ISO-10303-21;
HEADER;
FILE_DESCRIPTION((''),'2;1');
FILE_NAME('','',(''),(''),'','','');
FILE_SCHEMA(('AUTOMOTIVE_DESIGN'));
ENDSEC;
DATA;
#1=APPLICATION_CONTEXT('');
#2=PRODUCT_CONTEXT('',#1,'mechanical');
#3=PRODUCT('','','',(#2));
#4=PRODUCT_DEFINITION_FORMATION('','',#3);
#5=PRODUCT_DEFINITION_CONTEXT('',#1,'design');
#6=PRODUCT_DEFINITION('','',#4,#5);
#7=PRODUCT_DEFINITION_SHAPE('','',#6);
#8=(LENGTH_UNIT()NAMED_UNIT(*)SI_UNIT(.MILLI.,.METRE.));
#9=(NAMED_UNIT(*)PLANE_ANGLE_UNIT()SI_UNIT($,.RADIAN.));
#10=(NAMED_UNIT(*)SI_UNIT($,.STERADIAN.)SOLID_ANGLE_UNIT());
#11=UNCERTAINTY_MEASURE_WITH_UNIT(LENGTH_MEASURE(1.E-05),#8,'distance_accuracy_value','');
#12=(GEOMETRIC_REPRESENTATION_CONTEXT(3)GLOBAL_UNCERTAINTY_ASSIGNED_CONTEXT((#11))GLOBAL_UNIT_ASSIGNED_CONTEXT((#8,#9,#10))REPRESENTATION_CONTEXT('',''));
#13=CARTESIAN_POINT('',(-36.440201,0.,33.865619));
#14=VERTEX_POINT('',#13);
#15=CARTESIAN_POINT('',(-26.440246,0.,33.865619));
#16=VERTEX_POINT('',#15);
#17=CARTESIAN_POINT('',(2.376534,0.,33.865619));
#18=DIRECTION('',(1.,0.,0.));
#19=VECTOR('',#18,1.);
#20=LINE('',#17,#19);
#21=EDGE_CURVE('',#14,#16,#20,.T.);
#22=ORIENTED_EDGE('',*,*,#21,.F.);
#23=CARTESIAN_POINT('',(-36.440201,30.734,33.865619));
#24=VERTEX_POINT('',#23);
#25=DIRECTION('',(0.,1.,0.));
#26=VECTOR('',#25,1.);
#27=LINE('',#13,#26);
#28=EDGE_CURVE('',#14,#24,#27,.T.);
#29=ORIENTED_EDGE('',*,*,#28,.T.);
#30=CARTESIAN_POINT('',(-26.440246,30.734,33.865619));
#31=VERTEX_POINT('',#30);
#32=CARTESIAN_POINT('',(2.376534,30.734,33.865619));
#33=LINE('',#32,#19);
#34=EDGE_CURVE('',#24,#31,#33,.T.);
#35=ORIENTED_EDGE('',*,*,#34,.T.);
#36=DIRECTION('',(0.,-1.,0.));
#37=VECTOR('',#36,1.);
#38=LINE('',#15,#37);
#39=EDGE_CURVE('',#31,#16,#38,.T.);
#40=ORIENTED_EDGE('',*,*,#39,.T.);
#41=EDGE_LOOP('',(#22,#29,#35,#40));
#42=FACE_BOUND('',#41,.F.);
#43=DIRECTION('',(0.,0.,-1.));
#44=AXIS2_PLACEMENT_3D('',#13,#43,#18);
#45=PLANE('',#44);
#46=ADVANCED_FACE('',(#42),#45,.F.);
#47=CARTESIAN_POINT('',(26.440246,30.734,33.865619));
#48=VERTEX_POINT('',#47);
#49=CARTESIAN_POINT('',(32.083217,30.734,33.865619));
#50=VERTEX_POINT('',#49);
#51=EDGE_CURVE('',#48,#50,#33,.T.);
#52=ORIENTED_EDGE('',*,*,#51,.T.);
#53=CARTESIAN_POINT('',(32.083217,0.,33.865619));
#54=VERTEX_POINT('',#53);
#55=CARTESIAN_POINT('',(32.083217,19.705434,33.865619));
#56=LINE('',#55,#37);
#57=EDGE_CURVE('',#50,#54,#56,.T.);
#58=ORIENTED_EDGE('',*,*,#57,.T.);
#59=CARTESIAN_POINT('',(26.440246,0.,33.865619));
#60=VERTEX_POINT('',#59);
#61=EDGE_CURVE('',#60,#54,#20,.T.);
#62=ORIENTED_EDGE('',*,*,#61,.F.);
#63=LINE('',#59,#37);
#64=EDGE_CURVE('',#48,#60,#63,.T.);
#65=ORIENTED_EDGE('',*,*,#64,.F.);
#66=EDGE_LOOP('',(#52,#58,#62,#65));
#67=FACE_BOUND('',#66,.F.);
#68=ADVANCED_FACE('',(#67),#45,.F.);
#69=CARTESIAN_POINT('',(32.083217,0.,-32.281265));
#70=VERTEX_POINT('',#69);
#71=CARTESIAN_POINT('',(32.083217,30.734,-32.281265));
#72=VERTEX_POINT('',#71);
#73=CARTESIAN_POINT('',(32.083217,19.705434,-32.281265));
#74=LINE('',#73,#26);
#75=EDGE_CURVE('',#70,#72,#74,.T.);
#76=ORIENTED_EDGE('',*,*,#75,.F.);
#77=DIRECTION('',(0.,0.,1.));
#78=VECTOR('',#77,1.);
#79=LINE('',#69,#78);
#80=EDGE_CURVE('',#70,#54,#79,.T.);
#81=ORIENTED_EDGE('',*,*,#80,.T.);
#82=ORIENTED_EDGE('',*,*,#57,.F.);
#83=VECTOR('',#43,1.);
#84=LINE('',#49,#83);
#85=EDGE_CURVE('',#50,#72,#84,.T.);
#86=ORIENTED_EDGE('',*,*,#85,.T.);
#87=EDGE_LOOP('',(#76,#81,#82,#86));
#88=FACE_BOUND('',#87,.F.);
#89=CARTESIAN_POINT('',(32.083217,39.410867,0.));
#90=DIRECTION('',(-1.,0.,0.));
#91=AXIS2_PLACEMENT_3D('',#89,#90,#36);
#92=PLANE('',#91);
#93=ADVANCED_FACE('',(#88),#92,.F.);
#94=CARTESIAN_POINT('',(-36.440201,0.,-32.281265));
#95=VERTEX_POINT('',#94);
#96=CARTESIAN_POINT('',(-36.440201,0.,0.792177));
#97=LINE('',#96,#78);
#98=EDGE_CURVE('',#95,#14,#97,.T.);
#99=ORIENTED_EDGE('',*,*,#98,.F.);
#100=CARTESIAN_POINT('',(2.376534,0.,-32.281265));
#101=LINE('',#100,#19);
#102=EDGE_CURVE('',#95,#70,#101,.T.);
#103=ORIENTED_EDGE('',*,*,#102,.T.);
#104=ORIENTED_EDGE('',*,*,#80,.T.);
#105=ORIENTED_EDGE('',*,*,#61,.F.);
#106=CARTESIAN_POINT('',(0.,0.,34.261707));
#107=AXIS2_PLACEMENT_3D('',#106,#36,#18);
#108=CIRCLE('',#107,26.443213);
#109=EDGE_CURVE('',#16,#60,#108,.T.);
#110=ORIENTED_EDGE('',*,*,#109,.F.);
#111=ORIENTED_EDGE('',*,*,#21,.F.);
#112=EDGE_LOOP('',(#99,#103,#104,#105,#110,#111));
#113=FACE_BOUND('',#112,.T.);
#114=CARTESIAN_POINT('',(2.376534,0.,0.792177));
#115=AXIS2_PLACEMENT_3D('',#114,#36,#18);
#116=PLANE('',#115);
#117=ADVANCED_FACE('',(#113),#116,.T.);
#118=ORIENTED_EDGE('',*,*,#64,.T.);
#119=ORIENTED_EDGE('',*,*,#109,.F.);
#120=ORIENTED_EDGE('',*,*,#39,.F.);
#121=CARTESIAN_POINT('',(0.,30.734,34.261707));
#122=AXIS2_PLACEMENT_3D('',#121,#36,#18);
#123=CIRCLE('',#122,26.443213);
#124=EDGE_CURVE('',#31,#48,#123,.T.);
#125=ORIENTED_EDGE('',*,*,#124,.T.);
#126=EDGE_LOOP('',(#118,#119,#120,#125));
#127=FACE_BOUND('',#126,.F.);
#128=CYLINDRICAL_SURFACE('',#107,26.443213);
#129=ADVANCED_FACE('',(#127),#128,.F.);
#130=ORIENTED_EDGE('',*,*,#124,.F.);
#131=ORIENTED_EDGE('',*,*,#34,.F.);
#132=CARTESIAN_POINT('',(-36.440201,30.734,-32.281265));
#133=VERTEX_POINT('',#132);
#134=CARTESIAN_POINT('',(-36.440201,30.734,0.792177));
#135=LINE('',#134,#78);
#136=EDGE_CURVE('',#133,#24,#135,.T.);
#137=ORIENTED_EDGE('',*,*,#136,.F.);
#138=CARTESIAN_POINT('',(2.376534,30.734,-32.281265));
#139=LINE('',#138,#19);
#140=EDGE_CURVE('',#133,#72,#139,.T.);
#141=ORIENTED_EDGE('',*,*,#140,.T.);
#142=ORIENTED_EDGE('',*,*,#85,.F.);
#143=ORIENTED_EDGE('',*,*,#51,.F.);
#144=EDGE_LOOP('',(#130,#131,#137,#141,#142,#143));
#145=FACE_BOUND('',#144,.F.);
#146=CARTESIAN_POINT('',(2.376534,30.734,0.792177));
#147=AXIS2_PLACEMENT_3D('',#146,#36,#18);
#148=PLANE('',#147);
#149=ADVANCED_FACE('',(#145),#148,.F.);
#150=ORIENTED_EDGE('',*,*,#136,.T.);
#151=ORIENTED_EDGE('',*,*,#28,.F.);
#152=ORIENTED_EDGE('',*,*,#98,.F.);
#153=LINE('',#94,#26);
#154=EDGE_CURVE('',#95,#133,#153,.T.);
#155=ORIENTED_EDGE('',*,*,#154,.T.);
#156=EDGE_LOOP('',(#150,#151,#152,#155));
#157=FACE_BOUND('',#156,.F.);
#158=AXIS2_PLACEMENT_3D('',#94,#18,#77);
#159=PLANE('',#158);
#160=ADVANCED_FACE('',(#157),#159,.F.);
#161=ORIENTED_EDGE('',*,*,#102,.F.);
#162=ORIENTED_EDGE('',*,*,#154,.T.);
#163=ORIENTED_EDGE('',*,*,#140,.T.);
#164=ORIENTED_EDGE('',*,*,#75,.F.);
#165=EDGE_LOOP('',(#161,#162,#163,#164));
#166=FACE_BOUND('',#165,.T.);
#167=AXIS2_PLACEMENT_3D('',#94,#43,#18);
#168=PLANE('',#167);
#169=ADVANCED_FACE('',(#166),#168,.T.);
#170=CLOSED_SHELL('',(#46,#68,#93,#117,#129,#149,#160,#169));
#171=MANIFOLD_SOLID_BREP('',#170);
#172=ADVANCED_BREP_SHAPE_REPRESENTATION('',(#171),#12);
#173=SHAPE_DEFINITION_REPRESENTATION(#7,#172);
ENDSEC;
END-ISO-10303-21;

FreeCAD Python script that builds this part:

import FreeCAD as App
import Part
import Sketcher
from FreeCAD import Vector
Q = App.Units.Quantity

doc = App.newDocument("Part")
body = doc.addObject("PartDesign::Body", "Body")

sketch1 = doc.addObject("Sketcher::SketchObject", "Sketch")
body.addObject(sketch1)
sketch1.AttachmentSupport = (doc.XZ_Plane, [""])
sketch1.MapMode = "FlatFace"
sketch1.addGeometry([
    Part.LineSegment(Vector(-36, 34, 0), Vector(-36, -32, 0)),
    Part.LineSegment(Vector(-36, -32, 0), Vector(41, -32, 0)),
    Part.LineSegment(Vector(41, -32, 0), Vector(41, 34, 0)),
    Part.LineSegment(Vector(41, 34, 0), Vector(-36, 34, 0)),
], False)
sketch1.addConstraint([
    Sketcher.Constraint("Coincident", 0, 2, 1, 1),
    Sketcher.Constraint("Coincident", 1, 2, 2, 1),
    Sketcher.Constraint("Coincident", 2, 2, 3, 1),
    Sketcher.Constraint("Coincident", 3, 2, 0, 1),
    Sketcher.Constraint("Vertical", 0),
    Sketcher.Constraint("Horizontal", 1),
    Sketcher.Constraint("Vertical", 2),
    Sketcher.Constraint("Horizontal", 3),
    Sketcher.Constraint("DistanceX", 1, 1, 1, 2, Q("77.63347 mm")),
    Sketcher.Constraint("DistanceX", 0, 2, -1, 1, Q("36.440201 mm")),
    Sketcher.Constraint("DistanceY", 0, 2, 0, 1, Q("66.146884 mm")),
    Sketcher.Constraint("DistanceY", -1, 1, 2, 2, Q("33.865619 mm")),
])
pad1 = doc.addObject("PartDesign::Pad", "Pad")
body.addObject(pad1)
pad1.Profile = sketch1
pad1.Length = Q("1.21 in")
pad1.Reversed = True

sketch2 = doc.addObject("Sketcher::SketchObject", "Sketch001")
body.addObject(sketch2)
sketch2.AttachmentSupport = (doc.XZ_Plane, [""])
sketch2.MapMode = "FlatFace"
sketch2.addGeometry(Part.Circle(Vector(0, 34, 0), Vector(0, 0, 1), 26), False)
sketch2.addConstraint([
    Sketcher.Constraint("PointOnObject", 0, 3, -2),
    Sketcher.Constraint("Diameter", 0, Q("52.886426 mm")),
    Sketcher.Constraint("DistanceY", -1, 1, 0, 3, Q("34.261707 mm")),
])
pocket1 = doc.addObject("PartDesign::Pocket", "Pocket")
body.addObject(pocket1)
pocket1.Profile = sketch2
pocket1.Length = Q("1.24 in")

sketch3 = doc.addObject("Sketcher::SketchObject", "Sketch002")
body.addObject(sketch3)
sketch3.AttachmentSupport = (doc.XY_Plane, [""])
sketch3.MapMode = "FlatFace"
sketch3.addGeometry([
    Part.LineSegment(Vector(32, 39, 0), Vector(32, 0, 0)),
    Part.LineSegment(Vector(32, 0, 0), Vector(42, 0, 0)),
    Part.LineSegment(Vector(42, 0, 0), Vector(42, 39, 0)),
    Part.LineSegment(Vector(42, 39, 0), Vector(32, 39, 0)),
], False)
sketch3.addConstraint([
    Sketcher.Constraint("Coincident", 0, 2, 1, 1),
    Sketcher.Constraint("Coincident", 1, 2, 2, 1),
    Sketcher.Constraint("Coincident", 2, 2, 3, 1),
    Sketcher.Constraint("Coincident", 3, 2, 0, 1),
    Sketcher.Constraint("Vertical", 0),
    Sketcher.Constraint("Horizontal", 1),
    Sketcher.Constraint("Vertical", 2),
    Sketcher.Constraint("Horizontal", 3),
    Sketcher.Constraint("PointOnObject", 0, 2, -1),
    Sketcher.Constraint("DistanceX", 1, 1, 1, 2, Q("9.50614 mm")),
    Sketcher.Constraint("DistanceY", 0, 2, 0, 1, Q("39.410867 mm")),
    Sketcher.Constraint("DistanceX", -1, 1, 0, 2, Q("32.083217 mm")),
])
pocket2 = doc.addObject("PartDesign::Pocket", "Pocket001")
body.addObject(pocket2)
pocket2.Profile = sketch3
pocket2.Length = Q("3.09 in")
pocket2.Reversed = True

sketch4 = doc.addObject("Sketcher::SketchObject", "Sketch003")
body.addObject(sketch4)
sketch4.AttachmentSupport = (doc.XY_Plane, [""])
sketch4.MapMode = "FlatFace"
sketch4.addGeometry([
    Part.LineSegment(Vector(32, 39, 0), Vector(32, 0, 0)),
    Part.LineSegment(Vector(32, 0, 0), Vector(42, 0, 0)),
    Part.LineSegment(Vector(42, 0, 0), Vector(42, 39, 0)),
    Part.LineSegment(Vector(42, 39, 0), Vector(32, 39, 0)),
], False)
sketch4.addConstraint([
    Sketcher.Constraint("Coincident", 0, 2, 1, 1),
    Sketcher.Constraint("Coincident", 1, 2, 2, 1),
    Sketcher.Constraint("Coincident", 2, 2, 3, 1),
    Sketcher.Constraint("Coincident", 3, 2, 0, 1),
    Sketcher.Constraint("Vertical", 0),
    Sketcher.Constraint("Horizontal", 1),
    Sketcher.Constraint("Vertical", 2),
    Sketcher.Constraint("Horizontal", 3),
    Sketcher.Constraint("PointOnObject", 0, 2, -1),
    Sketcher.Constraint("DistanceX", 1, 1, 1, 2, Q("9.50614 mm")),
    Sketcher.Constraint("DistanceY", 0, 2, 0, 1, Q("39.410867 mm")),
    Sketcher.Constraint("DistanceX", -1, 1, 0, 2, Q("32.083217 mm")),
])
pocket3 = doc.addObject("PartDesign::Pocket", "Pocket002")
body.addObject(pocket3)
pocket3.Profile = sketch4
pocket3.Length = Q("2.77 in")

doc.recompute()
